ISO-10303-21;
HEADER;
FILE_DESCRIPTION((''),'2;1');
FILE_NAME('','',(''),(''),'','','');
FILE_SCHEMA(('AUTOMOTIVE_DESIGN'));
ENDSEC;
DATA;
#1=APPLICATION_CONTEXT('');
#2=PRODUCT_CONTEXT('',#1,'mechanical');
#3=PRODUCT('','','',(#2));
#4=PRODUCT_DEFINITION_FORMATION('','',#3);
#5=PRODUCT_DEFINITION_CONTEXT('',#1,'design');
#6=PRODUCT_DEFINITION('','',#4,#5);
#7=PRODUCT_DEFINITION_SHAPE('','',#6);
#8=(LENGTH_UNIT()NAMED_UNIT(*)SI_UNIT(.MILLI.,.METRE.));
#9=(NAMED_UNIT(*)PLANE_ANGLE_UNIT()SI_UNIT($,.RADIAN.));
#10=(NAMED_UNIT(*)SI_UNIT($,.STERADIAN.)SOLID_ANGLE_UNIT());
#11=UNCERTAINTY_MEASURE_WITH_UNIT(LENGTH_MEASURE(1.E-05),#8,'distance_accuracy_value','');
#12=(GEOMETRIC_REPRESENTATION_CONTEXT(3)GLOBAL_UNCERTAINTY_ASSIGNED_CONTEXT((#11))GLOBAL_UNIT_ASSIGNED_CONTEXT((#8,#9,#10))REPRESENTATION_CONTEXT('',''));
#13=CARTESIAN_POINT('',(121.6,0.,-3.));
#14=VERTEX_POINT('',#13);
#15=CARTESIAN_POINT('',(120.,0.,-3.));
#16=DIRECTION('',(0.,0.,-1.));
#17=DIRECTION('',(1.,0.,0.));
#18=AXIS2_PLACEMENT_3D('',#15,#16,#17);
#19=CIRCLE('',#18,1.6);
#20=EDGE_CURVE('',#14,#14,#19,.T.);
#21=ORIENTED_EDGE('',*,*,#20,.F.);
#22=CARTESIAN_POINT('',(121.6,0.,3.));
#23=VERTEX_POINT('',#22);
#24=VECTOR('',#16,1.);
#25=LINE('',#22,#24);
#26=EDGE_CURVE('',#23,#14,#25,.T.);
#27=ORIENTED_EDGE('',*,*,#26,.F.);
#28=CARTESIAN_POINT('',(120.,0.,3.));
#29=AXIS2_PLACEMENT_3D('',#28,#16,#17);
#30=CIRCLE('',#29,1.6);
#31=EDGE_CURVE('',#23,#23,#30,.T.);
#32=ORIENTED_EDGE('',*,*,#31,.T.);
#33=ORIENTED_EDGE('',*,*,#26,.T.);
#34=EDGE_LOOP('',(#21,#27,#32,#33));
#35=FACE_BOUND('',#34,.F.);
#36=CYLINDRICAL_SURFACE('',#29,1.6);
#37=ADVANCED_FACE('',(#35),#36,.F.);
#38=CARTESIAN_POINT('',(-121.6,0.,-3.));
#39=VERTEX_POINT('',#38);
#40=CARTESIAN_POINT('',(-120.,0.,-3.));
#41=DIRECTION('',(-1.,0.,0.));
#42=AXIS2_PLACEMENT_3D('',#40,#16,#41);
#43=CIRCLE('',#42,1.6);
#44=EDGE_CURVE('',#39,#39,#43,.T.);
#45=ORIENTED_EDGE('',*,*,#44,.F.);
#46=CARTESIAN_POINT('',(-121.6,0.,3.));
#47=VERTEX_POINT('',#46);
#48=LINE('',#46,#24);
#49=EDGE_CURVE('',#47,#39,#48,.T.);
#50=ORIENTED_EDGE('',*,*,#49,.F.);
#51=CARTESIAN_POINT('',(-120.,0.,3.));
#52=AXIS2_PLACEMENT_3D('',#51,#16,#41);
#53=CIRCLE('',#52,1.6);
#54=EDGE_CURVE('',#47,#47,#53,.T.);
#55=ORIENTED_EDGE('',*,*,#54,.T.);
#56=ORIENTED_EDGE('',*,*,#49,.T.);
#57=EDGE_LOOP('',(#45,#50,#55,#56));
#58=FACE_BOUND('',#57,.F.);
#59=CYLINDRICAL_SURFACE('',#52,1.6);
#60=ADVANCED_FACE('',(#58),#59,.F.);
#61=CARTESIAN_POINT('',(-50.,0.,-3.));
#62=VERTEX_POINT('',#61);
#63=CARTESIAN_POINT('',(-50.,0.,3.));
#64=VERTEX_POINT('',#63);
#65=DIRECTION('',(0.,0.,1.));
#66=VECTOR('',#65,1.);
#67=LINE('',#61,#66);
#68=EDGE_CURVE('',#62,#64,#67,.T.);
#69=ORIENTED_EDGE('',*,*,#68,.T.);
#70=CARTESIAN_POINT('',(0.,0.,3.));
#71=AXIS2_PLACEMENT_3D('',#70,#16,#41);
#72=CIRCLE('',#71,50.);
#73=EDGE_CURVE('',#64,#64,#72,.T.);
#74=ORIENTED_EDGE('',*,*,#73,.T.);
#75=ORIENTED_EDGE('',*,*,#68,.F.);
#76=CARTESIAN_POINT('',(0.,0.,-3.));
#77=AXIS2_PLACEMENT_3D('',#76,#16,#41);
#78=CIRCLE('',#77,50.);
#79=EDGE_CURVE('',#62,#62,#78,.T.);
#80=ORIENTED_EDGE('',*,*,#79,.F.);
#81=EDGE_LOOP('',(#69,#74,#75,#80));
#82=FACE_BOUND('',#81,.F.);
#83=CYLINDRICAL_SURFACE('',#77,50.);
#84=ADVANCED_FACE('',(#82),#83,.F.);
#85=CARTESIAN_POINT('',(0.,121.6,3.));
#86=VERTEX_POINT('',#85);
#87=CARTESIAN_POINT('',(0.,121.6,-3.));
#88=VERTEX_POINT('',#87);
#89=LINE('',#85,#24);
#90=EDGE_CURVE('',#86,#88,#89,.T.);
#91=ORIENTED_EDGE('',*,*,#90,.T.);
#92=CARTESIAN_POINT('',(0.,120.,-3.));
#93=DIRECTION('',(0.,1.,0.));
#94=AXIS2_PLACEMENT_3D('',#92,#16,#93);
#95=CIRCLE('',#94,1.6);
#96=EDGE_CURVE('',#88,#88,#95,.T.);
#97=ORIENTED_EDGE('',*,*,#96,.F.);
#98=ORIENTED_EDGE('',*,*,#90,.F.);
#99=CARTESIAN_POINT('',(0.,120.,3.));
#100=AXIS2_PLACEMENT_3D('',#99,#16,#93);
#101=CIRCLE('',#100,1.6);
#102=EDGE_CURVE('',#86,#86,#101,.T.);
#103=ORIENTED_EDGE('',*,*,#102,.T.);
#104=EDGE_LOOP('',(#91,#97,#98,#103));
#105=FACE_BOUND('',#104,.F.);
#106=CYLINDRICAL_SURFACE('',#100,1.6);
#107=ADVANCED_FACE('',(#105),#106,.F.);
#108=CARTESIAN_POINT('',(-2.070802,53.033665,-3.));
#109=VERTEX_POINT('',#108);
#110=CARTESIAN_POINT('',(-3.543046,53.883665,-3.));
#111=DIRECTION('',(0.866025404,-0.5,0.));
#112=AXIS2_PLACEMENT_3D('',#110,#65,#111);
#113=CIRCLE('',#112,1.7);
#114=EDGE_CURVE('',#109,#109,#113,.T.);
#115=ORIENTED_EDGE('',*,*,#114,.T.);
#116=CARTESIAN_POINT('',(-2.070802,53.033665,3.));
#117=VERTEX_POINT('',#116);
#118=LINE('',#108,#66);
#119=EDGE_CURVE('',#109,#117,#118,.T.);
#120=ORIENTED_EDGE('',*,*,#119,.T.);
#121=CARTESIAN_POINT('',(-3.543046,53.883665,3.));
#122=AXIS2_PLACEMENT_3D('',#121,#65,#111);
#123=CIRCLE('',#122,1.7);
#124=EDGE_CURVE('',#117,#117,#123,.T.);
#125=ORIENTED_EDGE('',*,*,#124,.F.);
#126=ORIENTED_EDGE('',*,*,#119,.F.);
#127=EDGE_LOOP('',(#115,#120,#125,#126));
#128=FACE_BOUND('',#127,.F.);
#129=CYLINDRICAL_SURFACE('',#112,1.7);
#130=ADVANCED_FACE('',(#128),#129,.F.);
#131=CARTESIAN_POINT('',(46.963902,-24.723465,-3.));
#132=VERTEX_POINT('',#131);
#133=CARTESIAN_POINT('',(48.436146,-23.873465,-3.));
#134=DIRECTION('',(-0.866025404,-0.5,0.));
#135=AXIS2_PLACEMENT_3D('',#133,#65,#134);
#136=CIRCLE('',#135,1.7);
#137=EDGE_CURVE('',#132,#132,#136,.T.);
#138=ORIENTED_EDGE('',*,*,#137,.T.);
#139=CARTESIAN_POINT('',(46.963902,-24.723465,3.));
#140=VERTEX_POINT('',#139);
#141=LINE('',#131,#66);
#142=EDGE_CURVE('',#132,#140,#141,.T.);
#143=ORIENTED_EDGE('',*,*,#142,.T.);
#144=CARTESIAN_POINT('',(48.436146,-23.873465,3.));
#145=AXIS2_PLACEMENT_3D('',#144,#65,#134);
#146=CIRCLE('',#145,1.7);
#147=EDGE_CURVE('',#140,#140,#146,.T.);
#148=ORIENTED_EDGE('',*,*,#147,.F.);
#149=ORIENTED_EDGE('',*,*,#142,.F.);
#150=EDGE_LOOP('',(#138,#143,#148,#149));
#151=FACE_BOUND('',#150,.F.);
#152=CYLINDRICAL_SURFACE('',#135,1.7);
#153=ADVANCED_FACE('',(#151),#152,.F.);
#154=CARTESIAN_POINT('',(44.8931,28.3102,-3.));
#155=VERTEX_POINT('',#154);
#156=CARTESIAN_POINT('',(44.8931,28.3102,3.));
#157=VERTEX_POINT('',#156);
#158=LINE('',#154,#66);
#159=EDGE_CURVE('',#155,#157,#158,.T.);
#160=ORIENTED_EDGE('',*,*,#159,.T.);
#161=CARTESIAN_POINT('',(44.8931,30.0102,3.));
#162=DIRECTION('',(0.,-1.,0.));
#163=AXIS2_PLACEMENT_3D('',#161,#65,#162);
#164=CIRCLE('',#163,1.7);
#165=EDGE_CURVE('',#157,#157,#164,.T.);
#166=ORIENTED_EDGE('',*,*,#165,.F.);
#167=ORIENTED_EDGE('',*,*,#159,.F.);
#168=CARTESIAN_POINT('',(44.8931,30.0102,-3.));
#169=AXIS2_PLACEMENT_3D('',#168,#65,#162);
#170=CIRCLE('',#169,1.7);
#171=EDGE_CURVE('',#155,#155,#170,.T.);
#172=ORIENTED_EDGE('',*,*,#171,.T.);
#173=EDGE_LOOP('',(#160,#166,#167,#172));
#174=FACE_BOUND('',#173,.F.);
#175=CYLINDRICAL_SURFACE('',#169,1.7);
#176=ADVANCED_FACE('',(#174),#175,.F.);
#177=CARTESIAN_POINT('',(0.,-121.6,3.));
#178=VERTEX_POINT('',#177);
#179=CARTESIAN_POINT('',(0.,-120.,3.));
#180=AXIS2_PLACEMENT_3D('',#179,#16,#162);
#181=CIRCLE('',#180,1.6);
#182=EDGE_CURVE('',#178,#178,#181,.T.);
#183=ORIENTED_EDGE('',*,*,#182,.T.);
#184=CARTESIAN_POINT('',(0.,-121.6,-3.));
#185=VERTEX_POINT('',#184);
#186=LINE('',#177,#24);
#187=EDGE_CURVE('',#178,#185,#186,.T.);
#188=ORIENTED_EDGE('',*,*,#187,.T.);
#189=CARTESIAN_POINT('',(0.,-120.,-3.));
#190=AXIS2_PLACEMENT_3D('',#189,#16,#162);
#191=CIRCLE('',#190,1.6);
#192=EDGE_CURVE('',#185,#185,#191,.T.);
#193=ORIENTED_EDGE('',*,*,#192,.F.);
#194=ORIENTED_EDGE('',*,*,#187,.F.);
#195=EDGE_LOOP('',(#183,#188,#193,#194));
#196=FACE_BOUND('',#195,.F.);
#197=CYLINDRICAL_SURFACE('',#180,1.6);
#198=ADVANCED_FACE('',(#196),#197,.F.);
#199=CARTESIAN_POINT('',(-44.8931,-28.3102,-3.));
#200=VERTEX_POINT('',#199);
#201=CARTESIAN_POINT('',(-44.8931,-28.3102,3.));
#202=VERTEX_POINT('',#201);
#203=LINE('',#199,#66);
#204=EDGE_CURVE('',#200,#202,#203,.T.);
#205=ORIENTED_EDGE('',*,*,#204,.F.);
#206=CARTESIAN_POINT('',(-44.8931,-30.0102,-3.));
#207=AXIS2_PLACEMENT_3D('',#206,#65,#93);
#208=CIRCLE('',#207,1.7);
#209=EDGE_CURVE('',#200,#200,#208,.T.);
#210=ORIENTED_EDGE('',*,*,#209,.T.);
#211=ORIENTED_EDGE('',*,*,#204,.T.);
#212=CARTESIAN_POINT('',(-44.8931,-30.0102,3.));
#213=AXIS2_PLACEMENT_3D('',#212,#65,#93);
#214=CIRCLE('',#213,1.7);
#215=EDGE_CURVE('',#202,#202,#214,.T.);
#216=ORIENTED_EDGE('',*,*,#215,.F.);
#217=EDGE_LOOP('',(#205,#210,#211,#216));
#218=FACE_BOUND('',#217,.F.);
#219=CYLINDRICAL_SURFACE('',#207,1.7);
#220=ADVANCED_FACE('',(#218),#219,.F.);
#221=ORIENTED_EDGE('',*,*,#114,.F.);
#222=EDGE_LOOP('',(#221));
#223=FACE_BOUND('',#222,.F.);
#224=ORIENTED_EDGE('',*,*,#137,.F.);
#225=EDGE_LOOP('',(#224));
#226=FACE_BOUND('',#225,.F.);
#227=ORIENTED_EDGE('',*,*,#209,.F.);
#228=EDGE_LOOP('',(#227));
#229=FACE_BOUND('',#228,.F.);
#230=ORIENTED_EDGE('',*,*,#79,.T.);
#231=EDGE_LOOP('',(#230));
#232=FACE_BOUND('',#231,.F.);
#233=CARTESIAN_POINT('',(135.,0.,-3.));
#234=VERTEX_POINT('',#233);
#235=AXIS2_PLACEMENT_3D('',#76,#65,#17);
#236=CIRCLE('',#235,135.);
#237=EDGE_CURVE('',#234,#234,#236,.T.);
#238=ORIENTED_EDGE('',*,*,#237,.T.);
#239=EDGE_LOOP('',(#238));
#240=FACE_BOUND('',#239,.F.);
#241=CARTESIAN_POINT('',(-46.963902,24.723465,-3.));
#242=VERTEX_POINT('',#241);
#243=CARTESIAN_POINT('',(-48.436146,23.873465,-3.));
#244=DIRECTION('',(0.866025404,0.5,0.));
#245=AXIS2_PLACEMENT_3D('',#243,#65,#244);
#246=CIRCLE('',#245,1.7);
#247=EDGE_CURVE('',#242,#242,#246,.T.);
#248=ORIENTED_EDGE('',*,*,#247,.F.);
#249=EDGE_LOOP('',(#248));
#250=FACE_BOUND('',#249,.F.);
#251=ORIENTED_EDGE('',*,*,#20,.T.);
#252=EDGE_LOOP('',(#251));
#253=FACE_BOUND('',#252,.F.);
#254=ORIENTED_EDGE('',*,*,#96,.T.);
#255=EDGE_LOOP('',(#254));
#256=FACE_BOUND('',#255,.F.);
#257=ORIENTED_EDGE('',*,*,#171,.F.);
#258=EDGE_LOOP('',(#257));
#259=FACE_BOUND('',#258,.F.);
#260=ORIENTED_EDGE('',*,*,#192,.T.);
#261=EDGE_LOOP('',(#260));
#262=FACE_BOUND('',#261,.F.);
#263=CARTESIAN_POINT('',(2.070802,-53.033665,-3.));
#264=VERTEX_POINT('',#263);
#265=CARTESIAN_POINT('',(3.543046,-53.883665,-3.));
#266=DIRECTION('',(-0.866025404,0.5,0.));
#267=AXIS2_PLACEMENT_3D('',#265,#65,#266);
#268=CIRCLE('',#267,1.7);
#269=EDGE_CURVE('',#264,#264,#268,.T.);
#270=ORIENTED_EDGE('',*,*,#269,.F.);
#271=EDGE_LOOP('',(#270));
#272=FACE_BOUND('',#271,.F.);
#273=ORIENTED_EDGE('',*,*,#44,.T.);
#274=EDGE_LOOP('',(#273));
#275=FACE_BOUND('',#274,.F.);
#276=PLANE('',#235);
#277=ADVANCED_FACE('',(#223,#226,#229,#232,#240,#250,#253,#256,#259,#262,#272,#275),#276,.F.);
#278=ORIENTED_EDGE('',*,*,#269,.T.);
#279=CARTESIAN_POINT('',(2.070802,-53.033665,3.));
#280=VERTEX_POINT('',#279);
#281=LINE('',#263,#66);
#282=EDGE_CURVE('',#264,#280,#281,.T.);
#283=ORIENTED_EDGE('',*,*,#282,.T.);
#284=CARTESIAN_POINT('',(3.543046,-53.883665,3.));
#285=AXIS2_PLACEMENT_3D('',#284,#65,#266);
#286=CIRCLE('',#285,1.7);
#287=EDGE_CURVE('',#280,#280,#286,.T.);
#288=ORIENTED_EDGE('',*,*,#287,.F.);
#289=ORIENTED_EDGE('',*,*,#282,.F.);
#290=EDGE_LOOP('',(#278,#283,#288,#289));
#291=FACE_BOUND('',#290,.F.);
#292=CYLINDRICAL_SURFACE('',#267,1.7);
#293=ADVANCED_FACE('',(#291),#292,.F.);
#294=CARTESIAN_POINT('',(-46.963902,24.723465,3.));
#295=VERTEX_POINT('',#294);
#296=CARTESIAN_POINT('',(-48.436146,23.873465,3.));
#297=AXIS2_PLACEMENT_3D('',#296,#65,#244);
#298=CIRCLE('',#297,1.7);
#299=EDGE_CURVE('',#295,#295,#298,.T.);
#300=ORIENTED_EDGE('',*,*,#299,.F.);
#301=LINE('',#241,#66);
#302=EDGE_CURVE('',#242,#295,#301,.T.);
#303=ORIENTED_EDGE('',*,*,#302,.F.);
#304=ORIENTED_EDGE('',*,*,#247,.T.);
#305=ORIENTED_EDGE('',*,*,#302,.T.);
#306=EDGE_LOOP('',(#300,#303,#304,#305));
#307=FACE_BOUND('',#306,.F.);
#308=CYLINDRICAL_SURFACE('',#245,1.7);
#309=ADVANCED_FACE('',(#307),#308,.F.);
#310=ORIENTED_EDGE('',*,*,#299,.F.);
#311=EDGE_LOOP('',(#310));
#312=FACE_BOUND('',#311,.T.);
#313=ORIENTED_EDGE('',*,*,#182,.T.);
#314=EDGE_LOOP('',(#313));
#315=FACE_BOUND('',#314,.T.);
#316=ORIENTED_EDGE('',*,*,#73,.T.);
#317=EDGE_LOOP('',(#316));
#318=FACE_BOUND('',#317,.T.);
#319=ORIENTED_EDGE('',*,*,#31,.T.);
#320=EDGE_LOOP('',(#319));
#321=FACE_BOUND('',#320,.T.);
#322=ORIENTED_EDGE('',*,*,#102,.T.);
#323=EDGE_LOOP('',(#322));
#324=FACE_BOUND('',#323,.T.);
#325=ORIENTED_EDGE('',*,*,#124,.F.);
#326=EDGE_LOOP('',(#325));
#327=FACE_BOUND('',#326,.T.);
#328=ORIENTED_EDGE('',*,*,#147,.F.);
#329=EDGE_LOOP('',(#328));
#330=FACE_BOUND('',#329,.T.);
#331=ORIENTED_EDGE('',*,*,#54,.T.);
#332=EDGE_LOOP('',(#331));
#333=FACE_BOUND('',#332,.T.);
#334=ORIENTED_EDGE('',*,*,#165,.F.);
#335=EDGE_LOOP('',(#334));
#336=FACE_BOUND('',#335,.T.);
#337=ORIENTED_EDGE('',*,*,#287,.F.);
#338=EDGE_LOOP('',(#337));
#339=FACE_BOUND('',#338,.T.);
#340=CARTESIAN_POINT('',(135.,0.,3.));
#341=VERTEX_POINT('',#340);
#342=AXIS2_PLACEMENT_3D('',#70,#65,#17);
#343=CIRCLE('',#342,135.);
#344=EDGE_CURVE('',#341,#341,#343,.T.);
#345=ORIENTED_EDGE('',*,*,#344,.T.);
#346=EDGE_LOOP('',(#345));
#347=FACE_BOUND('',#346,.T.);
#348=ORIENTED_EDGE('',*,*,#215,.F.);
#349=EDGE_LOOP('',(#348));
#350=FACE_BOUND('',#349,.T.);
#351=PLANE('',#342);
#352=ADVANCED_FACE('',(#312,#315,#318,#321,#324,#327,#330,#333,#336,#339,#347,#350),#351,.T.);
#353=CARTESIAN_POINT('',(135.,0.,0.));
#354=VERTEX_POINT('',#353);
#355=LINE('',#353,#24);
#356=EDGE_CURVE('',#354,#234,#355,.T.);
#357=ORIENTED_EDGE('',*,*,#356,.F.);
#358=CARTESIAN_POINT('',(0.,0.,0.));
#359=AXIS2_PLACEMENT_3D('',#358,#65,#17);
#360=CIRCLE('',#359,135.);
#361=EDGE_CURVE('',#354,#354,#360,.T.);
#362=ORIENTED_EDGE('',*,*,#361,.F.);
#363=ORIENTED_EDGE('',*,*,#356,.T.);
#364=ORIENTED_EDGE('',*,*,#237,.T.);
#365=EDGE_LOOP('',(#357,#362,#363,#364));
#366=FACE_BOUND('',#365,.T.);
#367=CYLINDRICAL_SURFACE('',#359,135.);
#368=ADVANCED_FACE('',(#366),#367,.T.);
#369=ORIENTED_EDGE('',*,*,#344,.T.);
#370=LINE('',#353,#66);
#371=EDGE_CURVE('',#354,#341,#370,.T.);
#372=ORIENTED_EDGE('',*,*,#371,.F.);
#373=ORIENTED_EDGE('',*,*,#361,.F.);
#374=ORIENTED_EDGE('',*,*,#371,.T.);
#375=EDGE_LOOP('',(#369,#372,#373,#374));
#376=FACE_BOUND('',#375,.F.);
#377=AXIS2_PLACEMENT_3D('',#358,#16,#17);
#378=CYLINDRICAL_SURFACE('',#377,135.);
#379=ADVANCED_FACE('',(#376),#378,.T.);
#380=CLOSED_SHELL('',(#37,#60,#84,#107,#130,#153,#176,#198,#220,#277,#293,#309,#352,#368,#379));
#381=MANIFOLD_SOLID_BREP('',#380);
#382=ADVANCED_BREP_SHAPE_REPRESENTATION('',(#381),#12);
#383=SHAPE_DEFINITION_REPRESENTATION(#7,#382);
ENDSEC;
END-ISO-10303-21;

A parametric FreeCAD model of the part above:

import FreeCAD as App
import Part
import Sketcher
from FreeCAD import Vector

doc = App.newDocument("Part")
body = doc.addObject("PartDesign::Body", "Body")

sketch1 = body.newObject("Sketcher::SketchObject", "Sketch")
sketch1.AttachmentSupport = (doc.getObject("XY_Plane"), [""])
sketch1.MapMode = "FlatFace"
sketch1.addGeometry(Part.Circle(Vector(0, 0, 0), Vector(0, 0, 1), 135), False)
sketch1.addConstraint(Sketcher.Constraint("Coincident", 0, 3, -1, 1))
sketch1.addConstraint(Sketcher.Constraint("Diameter", 0, 270.0))
pad1 = body.newObject("PartDesign::Pad", "Pad")
pad1.Profile = sketch1
pad1.Length = 6
pad1.Midplane = True

sketch2 = body.newObject("Sketcher::SketchObject", "Sketch001")
sketch2.AttachmentSupport = (doc.getObject("XY_Plane"), [""])
sketch2.MapMode = "FlatFace"
sketch2.AttachmentOffset = App.Placement(Vector(0, 0, 3), App.Rotation())
sketch2.addGeometry(Part.Circle(Vector(0, -120, 0), Vector(0, 0, 1), 1.6), False)
sketch2.addConstraint(Sketcher.Constraint("PointOnObject", 0, 3, -2))
sketch2.addConstraint(Sketcher.Constraint("Diameter", 0, 3.2))
sketch2.addConstraint(Sketcher.Constraint("DistanceY", 0, 3, -1, 1, 120.0))
doc.recompute()
hole = body.newObject("PartDesign::Hole", "Hole")
hole.Profile = sketch2
hole.ThreadType = "None"
hole.Diameter = 3.2
hole.DepthType = "ThroughAll"
doc.recompute()

polarpattern = body.newObject("PartDesign::PolarPattern", "PolarPattern")
polarpattern.Originals = [hole]
polarpattern.Axis = (doc.getObject("Z_Axis"), [""])
polarpattern.Angle = 360
polarpattern.Occurrences = 4
body.Tip = polarpattern

sketch3 = body.newObject("Sketcher::SketchObject", "Sketch002")
sketch3.AttachmentSupport = (doc.getObject("XY_Plane"), [""])
sketch3.MapMode = "FlatFace"
sketch3.AttachmentOffset = App.Placement(Vector(0, 0, -3), App.Rotation())
sketch3.addGeometry(Part.Circle(Vector(0, 0, 0), Vector(0, 0, 1), 50), False)
sketch3.addConstraint(Sketcher.Constraint("Coincident", 0, 3, -1, 1))
sketch3.addConstraint(Sketcher.Constraint("Diameter", 0, 100.0))
pocket1 = body.newObject("PartDesign::Pocket", "Pocket")
pocket1.Profile = sketch3
pocket1.Type = "ThroughAll"
pocket1.Reversed = True

sketch4 = body.newObject("Sketcher::SketchObject", "Sketch003")
sketch4.AttachmentSupport = (doc.getObject("XY_Plane"), [""])
sketch4.MapMode = "FlatFace"
sketch4.AttachmentOffset = App.Placement(Vector(0, 0, -3), App.Rotation())
sketch4.addGeometry(Part.Circle(Vector(-44.9, -30, 0), Vector(0, 0, 1), 1.7), False)
sketch4.addConstraint(Sketcher.Constraint("Diameter", 0, 3.4))
sketch4.addConstraint(Sketcher.Constraint("DistanceX", 0, 3, -1, 1, 44.893))
sketch4.addConstraint(Sketcher.Constraint("DistanceY", 0, 3, -1, 1, 30.0102))
doc.recompute()
hole2 = body.newObject("PartDesign::Hole", "Hole001")
hole2.Profile = sketch4
hole2.ThreadType = "None"
hole2.Diameter = 3.4
hole2.DepthType = "ThroughAll"
hole2.Reversed = True
doc.recompute()

polarpattern2 = body.newObject("PartDesign::PolarPattern", "PolarPattern001")
polarpattern2.Originals = [hole2]
polarpattern2.Axis = (doc.getObject("Z_Axis"), [""])
polarpattern2.Angle = 360
polarpattern2.Occurrences = 6
body.Tip = polarpattern2

doc.recompute()
